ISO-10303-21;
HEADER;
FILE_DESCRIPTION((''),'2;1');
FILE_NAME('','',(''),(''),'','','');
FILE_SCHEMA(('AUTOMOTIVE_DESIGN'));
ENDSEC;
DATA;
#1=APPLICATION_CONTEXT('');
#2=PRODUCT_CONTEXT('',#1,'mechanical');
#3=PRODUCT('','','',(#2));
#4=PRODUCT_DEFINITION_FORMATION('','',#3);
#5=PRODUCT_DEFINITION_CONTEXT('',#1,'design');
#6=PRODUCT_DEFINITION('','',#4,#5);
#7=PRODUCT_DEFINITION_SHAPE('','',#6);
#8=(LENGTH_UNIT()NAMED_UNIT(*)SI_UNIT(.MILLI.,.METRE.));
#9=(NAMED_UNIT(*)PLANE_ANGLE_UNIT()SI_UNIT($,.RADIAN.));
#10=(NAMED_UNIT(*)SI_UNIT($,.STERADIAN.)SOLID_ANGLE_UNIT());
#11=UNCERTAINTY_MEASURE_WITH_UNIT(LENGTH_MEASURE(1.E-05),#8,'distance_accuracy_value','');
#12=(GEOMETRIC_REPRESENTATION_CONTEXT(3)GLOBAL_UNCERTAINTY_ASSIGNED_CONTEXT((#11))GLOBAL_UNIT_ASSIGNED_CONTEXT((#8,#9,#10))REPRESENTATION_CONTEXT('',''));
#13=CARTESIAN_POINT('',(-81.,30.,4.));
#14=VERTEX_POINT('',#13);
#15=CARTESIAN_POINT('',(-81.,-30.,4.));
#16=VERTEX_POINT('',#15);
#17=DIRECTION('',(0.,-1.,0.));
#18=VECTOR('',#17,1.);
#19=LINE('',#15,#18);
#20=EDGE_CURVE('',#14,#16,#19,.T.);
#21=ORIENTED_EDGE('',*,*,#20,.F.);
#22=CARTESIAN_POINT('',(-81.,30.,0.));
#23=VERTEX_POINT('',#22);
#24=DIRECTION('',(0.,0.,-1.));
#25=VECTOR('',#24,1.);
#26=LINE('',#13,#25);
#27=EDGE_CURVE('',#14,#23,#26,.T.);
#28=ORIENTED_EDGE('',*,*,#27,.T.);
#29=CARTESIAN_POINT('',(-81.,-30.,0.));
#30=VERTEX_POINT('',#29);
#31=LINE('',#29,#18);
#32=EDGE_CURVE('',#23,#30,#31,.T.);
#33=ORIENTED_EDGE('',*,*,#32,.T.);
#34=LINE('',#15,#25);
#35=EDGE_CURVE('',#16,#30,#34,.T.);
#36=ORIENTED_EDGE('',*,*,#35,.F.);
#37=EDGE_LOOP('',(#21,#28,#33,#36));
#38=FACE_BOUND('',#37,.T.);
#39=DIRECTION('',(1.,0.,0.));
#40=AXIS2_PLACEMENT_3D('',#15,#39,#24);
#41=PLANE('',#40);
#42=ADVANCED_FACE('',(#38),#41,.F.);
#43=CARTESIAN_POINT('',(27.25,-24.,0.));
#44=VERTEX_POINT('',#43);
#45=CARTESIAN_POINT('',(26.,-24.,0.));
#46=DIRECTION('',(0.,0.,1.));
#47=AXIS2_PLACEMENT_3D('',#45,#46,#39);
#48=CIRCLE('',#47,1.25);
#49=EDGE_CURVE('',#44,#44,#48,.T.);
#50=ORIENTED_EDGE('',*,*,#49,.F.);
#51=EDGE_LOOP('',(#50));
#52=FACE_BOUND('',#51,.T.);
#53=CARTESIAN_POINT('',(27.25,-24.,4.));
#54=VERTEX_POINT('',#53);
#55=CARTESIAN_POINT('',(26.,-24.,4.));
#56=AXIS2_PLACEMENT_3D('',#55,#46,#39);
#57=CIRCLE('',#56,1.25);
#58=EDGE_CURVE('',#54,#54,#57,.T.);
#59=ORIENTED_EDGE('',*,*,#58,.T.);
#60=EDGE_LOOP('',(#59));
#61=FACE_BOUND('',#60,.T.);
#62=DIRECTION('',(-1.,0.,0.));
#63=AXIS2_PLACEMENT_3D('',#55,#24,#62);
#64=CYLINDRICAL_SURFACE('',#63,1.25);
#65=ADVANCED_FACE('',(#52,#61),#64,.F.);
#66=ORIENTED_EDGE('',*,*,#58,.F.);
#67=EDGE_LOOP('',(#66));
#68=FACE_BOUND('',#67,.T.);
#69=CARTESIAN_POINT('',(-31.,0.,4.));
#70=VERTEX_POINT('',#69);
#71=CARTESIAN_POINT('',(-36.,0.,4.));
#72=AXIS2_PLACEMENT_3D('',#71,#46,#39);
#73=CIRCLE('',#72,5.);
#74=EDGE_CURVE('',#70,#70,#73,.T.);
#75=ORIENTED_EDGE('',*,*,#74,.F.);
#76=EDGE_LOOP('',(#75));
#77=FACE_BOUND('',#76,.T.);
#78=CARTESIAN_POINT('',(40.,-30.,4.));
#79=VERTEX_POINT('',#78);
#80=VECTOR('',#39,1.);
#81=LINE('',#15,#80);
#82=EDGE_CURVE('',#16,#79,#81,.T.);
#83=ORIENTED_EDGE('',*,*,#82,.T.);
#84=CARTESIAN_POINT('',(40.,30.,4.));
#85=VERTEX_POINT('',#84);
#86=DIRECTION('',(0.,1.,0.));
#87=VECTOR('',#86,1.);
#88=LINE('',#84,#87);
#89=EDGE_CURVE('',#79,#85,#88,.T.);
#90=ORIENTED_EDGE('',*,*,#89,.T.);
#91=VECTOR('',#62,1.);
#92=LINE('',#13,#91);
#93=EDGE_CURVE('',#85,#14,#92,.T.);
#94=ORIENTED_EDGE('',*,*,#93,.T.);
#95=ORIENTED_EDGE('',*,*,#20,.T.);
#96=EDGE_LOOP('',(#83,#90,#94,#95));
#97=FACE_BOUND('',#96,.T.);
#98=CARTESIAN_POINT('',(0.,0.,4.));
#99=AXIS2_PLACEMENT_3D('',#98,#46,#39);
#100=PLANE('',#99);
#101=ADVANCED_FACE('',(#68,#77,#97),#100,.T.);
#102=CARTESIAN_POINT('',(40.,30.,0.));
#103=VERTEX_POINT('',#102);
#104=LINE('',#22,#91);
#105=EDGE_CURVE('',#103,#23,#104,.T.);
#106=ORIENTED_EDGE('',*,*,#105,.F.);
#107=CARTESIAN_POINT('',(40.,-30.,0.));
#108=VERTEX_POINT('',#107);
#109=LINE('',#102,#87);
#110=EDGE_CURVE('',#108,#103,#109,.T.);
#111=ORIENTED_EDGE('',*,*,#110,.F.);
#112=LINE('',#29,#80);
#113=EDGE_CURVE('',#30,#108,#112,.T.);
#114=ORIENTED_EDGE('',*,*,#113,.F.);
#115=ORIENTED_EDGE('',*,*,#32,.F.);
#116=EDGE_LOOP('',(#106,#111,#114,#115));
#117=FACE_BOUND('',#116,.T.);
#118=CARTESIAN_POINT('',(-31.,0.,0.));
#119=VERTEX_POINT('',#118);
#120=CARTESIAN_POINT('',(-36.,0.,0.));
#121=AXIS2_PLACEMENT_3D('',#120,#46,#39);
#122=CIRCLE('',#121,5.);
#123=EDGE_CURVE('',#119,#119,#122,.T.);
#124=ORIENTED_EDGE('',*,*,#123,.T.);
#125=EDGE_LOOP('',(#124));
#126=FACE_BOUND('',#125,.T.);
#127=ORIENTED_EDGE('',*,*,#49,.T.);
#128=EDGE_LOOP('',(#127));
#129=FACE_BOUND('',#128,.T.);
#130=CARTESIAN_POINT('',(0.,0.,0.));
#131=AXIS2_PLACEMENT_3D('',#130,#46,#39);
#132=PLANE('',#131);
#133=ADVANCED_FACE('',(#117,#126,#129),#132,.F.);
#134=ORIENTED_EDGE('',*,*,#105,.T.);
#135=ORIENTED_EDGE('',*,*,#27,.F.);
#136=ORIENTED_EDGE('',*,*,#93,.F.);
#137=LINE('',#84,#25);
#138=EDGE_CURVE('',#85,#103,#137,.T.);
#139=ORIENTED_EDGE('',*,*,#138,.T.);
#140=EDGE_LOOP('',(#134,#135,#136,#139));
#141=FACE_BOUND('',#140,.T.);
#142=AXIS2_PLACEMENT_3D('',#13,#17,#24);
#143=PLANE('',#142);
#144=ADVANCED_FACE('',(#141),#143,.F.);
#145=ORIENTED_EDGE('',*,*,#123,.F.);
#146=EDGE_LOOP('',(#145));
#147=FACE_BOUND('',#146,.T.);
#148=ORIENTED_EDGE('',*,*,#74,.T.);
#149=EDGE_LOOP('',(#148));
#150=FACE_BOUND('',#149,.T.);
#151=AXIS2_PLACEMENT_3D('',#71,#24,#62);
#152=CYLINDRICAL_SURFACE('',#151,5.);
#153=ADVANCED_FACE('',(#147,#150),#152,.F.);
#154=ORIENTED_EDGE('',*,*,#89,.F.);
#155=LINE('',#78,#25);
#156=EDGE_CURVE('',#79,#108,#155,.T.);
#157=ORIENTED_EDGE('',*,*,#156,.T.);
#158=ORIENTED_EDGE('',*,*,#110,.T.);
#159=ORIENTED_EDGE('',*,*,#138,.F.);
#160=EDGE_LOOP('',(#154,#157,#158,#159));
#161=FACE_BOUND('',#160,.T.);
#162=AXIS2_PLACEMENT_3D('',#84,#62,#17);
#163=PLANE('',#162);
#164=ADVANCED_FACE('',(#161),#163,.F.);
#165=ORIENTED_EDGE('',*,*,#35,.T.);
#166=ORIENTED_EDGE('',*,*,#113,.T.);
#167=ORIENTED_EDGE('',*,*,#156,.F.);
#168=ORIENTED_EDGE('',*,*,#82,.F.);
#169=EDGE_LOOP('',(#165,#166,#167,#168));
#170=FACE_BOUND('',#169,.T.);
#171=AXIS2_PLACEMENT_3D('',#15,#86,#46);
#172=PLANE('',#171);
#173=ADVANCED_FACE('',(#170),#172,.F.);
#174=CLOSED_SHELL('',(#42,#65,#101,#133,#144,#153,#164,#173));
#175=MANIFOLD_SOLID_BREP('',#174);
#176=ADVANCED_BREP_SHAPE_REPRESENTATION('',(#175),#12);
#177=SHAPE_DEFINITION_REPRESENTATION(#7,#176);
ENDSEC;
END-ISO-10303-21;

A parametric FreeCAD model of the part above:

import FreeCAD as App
import Part
import Sketcher

V = App.Vector

doc = App.newDocument("Part")
params = doc.addObject("Spreadsheet::Sheet", "Params")
for row, (alias, value) in enumerate([
    ("sketch1_diameter", "10 mm"),
    ("sketch1_diameter2", "2.5 mm"),
    ("sketch1_width", "121 mm"),
    ("sketch1_height", "60 mm"),
    ("pad1_length", "4 mm"),
], start=1):
    params.set(f"A{row}", alias)
    params.set(f"B{row}", "=" + value)
    params.setAlias(f"B{row}", alias)

body = doc.addObject("PartDesign::Body", "Body")

# Sketch on XY plane
sketch1 = body.newObject("Sketcher::SketchObject", "Sketch")
sketch1.AttachmentSupport = (doc.getObject("XY_Plane"), [""])
sketch1.MapMode = "FlatFace"
sketch1.addGeometry([
    Part.LineSegment(V(-81, 30, 0), V(-81, -30, 0)),  # 0
    Part.LineSegment(V(-81, -30, 0), V(40, -30, 0)),  # 1
    Part.LineSegment(V(40, -30, 0), V(40, 30, 0)),  # 2
    Part.LineSegment(V(40, 30, 0), V(-81, 30, 0)),  # 3
    Part.Circle(V(26, -24, 0), V(0, 0, 1), 1.25),  # 4
    Part.Circle(V(-36, 0, 0), V(0, 0, 1), 5),  # 5
], False)
sketch1.addConstraint([
    Sketcher.Constraint("Coincident", 0, 2, 1, 1),
    Sketcher.Constraint("Coincident", 1, 2, 2, 1),
    Sketcher.Constraint("Coincident", 2, 2, 3, 1),
    Sketcher.Constraint("Coincident", 3, 2, 0, 1),
    Sketcher.Constraint("Vertical", 0),
    Sketcher.Constraint("Horizontal", 1),
    Sketcher.Constraint("Vertical", 2),
    Sketcher.Constraint("Horizontal", 3),
    Sketcher.Constraint("PointOnObject", 5, 3, -1),
    Sketcher.Constraint("Diameter", 5, 10.0),
    Sketcher.Constraint("Diameter", 4, 2.5),
    Sketcher.Constraint("DistanceX", 1, 1, 1, 2, 121.0),
    Sketcher.Constraint("DistanceY", 0, 2, 0, 1, 60.0),
    Sketcher.Constraint("DistanceX", -1, 1, 4, 3, 26.0),
    Sketcher.Constraint("DistanceY", 4, 3, -1, 1, 24.0),
    Sketcher.Constraint("DistanceX", 5, 3, -1, 1, 36.0),
    Sketcher.Constraint("DistanceX", 0, 2, -1, 1, 81.0),
    Sketcher.Constraint("DistanceY", 0, 2, -1, 1, 30.0),
])
sketch1.setExpression("Constraints[9]", "Params.sketch1_diameter")
sketch1.setExpression("Constraints[10]", "Params.sketch1_diameter2")
sketch1.setExpression("Constraints[11]", "Params.sketch1_width")
sketch1.setExpression("Constraints[12]", "Params.sketch1_height")
pad1 = body.newObject("PartDesign::Pad", "Pad")
pad1.Profile = sketch1
pad1.setExpression("Length", "Params.pad1_length")

doc.recompute()
